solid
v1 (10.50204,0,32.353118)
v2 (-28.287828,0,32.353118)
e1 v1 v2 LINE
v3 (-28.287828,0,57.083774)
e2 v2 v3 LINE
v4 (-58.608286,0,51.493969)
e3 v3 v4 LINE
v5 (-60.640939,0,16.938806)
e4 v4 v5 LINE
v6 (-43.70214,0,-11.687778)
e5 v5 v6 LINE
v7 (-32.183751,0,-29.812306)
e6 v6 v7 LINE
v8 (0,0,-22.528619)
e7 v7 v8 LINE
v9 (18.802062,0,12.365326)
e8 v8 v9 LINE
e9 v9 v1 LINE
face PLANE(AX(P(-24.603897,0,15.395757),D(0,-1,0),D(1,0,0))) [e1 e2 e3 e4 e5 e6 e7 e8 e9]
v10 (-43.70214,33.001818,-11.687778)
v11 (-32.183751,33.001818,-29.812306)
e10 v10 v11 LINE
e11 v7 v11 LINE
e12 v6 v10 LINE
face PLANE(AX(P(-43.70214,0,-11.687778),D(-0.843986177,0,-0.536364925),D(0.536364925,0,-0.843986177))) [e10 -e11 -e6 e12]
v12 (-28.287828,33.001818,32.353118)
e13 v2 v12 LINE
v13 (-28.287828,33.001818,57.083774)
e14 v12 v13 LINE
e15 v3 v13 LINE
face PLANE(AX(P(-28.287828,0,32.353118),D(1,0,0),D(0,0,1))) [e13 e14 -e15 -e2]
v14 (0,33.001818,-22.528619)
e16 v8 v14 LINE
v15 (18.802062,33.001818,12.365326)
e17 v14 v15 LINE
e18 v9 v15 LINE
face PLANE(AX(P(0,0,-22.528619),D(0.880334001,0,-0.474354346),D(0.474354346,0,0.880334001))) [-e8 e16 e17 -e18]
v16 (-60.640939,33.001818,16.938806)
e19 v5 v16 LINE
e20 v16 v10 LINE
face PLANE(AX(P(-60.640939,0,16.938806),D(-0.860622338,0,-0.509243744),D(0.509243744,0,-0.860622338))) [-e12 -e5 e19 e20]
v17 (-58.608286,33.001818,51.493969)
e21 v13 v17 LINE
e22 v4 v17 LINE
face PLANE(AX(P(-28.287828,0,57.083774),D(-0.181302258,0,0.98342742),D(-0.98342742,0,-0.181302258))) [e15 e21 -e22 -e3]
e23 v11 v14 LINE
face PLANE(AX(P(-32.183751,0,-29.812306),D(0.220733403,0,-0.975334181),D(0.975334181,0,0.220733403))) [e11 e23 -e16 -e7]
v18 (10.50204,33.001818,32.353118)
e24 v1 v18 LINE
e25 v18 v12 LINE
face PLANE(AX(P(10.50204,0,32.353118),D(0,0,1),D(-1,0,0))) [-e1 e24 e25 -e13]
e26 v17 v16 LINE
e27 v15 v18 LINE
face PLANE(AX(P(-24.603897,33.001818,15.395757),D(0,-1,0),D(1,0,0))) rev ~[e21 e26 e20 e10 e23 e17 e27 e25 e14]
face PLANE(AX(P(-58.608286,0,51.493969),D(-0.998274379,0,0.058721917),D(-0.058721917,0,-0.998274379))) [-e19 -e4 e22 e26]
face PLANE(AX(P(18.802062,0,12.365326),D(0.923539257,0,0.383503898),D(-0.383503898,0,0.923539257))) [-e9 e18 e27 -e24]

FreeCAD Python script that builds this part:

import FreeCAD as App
import Part
import Sketcher
from FreeCAD import Vector


def add_polygon(sketch, points):
    """Adds a closed chain of lines whose ends are joined by coincident constraints."""
    first, n = sketch.GeometryCount, len(points)
    for a, b in zip(points, points[1:] + points[:1]):
        sketch.addGeometry(Part.LineSegment(App.Vector(*a, 0), App.Vector(*b, 0)), False)
    for i in range(n):
        sketch.addConstraint(Sketcher.Constraint("Coincident", first + i, 2, first + (i + 1) % n, 1))

doc = App.newDocument("Part")
body = doc.addObject("PartDesign::Body", "Body")

sketch1 = doc.addObject("Sketcher::SketchObject", "Sketch")
body.addObject(sketch1)
sketch1.AttachmentSupport = (doc.XZ_Plane, [""])
sketch1.MapMode = "FlatFace"
add_polygon(sketch1, [(-28.287828, 32.353118), (-28.287828, 57.083774), (-58.608286, 51.493969), (-60.640939, 16.938806), (-43.70214, -11.687778), (-32.183751, -29.812306), (0, -22.528619), (18.802062, 12.365326), (10.50204, 32.353118)])
sketch1.addConstraint([
    Sketcher.Constraint("Vertical", 0),
    Sketcher.Constraint("Horizontal", 8),
    Sketcher.Constraint("PointOnObject", 5, 2, -2),
    Sketcher.Constraint("DistanceX", 2, 2, 6, 2, 79.443001),
    Sketcher.Constraint("Distance", 7, 21.642601),
    Sketcher.Constraint("DistanceX", 2, 2, 3, 2, 16.938799),
    Sketcher.Constraint("Distance", 4, 21.474911),
    Sketcher.Constraint("DistanceX", 8, 2, 8, 1, 38.789868),
    Sketcher.Constraint("DistanceY", 0, 1, 0, 2, 24.730656),
    Sketcher.Constraint("DistanceX", 0, 2, -1, 1, 28.287828),
    Sketcher.Constraint("DistanceY", -1, 1, 1, 2, 51.493969),
    Sketcher.Constraint("DistanceX", 2, 2, -1, 1, 60.640939),
    Sketcher.Constraint("DistanceX", 4, 2, -1, 1, 32.183751),
    Sketcher.Constraint("DistanceY", 5, 2, -1, 1, 22.528619),
    Sketcher.Constraint("DistanceY", -1, 1, 7, 2, 32.353118),
    Sketcher.Constraint("DistanceY", 3, 2, 0, 2, 68.771552),
    Sketcher.Constraint("DistanceY", 6, 2, 2, 2, 4.57348),
    Sketcher.Constraint("Distance", 1, 30.831414),
])
pad1 = doc.addObject("PartDesign::Pad", "Pad")
body.addObject(pad1)
pad1.Profile = sketch1
pad1.Length = 33.001818
pad1.Reversed = True

doc.recompute()
